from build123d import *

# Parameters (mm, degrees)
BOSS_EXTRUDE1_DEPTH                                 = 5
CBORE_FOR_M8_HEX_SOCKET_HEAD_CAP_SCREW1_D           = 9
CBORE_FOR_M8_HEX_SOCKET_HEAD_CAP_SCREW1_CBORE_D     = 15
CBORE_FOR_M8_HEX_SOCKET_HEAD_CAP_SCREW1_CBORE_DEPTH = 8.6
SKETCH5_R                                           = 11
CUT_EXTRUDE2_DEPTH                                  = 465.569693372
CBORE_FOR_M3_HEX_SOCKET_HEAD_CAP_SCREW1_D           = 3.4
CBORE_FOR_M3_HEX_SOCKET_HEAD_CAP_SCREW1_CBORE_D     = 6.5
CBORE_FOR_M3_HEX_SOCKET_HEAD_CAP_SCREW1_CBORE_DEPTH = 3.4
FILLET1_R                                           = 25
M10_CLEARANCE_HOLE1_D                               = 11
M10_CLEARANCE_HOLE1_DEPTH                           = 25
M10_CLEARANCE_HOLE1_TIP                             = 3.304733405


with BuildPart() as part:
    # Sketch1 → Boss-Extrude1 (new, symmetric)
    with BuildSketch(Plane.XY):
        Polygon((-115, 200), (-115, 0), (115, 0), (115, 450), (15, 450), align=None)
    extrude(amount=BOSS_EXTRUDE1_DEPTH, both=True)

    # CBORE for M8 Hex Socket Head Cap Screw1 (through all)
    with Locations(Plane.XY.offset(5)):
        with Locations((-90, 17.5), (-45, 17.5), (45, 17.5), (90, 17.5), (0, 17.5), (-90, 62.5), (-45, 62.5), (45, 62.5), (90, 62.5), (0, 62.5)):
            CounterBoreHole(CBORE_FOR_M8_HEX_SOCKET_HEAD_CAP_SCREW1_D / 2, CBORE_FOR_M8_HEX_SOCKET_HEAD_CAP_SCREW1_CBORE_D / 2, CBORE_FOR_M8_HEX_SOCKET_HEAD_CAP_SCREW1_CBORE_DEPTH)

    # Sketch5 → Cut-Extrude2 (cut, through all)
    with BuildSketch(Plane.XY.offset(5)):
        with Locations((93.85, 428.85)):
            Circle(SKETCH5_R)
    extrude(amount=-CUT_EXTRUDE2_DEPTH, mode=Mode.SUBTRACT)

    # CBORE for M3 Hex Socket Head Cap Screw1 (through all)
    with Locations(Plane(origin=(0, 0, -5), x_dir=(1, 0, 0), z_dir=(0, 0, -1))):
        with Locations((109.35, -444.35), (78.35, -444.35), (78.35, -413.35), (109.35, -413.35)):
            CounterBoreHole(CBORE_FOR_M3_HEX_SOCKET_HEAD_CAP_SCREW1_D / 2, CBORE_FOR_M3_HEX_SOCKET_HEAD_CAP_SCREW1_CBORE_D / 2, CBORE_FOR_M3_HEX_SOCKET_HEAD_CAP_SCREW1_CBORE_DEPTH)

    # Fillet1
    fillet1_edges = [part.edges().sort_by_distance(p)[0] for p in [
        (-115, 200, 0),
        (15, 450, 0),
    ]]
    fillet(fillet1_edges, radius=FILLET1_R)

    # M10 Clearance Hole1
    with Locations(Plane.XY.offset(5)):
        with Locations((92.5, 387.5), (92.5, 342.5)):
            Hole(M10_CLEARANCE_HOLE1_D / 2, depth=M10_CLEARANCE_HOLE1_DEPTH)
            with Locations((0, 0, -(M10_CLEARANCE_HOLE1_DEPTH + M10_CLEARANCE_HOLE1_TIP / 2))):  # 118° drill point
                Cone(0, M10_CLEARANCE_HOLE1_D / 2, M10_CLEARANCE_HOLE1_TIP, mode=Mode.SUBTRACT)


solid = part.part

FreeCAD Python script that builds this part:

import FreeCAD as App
import Part
import Sketcher


def edges_at(feature, points):
    """Names of the edges that pass closest to the given points."""
    edges = feature.Shape.Edges
    near = lambda p: min(range(len(edges)), key=lambda i: edges[i].distToShape(Part.Vertex(*p))[0])
    return sorted({f"Edge{near(p) + 1}" for p in points})


def add_polygon(sketch, points):
    """Adds a closed chain of lines whose ends are joined by coincident constraints."""
    first, n = sketch.GeometryCount, len(points)
    for a, b in zip(points, points[1:] + points[:1]):
        sketch.addGeometry(Part.LineSegment(App.Vector(*a, 0), App.Vector(*b, 0)), False)
    for i in range(n):
        sketch.addConstraint(Sketcher.Constraint("Coincident", first + i, 2, first + (i + 1) % n, 1))

doc = App.newDocument("Part")
body = doc.addObject("PartDesign::Body", "Body")

sketch1 = body.newObject("Sketcher::SketchObject", "Sketch")
sketch1.AttachmentSupport = (doc.getObject("XY_Plane"), [""])
sketch1.MapMode = "FlatFace"
add_polygon(sketch1, [(-115, 200), (-115, 0), (115, 0), (115, 450), (15, 450)])
sketch1.addConstraint([
    Sketcher.Constraint("Vertical", 0),
    Sketcher.Constraint("Horizontal", 1),
    Sketcher.Constraint("Vertical", 2),
    Sketcher.Constraint("Horizontal", 3),
    Sketcher.Constraint("Symmetric", 0, 2, 1, 2, -1, 1),
    Sketcher.Constraint("DistanceX", 1, 1, 1, 2, 230.0),
    Sketcher.Constraint("DistanceX", 3, 2, 3, 1, 100.0),
    Sketcher.Constraint("DistanceY", 0, 2, 0, 1, 200.0),
    Sketcher.Constraint("DistanceY", 2, 1, 2, 2, 450.0),
])
pad1 = body.newObject("PartDesign::Pad", "Pad")
pad1.Profile = sketch1
pad1.Length = 10
pad1.Midplane = True

sketch2 = body.newObject("Sketcher::SketchObject", "Sketch001")
sketch2.AttachmentSupport = (doc.getObject("XY_Plane"), [""])
sketch2.MapMode = "FlatFace"
sketch2.AttachmentOffset = App.Placement(App.Vector(0, 0, 5), App.Rotation())
sketch2.addGeometry([
    Part.Circle(App.Vector(-90, 17.5, 0), App.Vector(0, 0, 1), 4.5),
    Part.Circle(App.Vector(-45, 17.5, 0), App.Vector(0, 0, 1), 4.5),
    Part.Circle(App.Vector(45, 17.5, 0), App.Vector(0, 0, 1), 4.5),
    Part.Circle(App.Vector(90, 17.5, 0), App.Vector(0, 0, 1), 4.5),
    Part.Circle(App.Vector(0, 17.5, 0), App.Vector(0, 0, 1), 4.5),
    Part.Circle(App.Vector(-90, 62.5, 0), App.Vector(0, 0, 1), 4.5),
    Part.Circle(App.Vector(-45, 62.5, 0), App.Vector(0, 0, 1), 4.5),
    Part.Circle(App.Vector(45, 62.5, 0), App.Vector(0, 0, 1), 4.5),
    Part.Circle(App.Vector(90, 62.5, 0), App.Vector(0, 0, 1), 4.5),
    Part.Circle(App.Vector(0, 62.5, 0), App.Vector(0, 0, 1), 4.5),
], False)
sketch2.addConstraint([
    Sketcher.Constraint("Equal", 0, 1),
    Sketcher.Constraint("Equal", 1, 2),
    Sketcher.Constraint("Equal", 2, 3),
    Sketcher.Constraint("Equal", 3, 4),
    Sketcher.Constraint("Equal", 4, 5),
    Sketcher.Constraint("Equal", 5, 6),
    Sketcher.Constraint("Equal", 6, 7),
    Sketcher.Constraint("Equal", 7, 8),
    Sketcher.Constraint("Equal", 8, 9),
    Sketcher.Constraint("Symmetric", 1, 3, 2, 3, -2),
    Sketcher.Constraint("Symmetric", 0, 3, 3, 3, -2),
    Sketcher.Constraint("Symmetric", 6, 3, 7, 3, -2),
    Sketcher.Constraint("Symmetric", 5, 3, 8, 3, -2),
    Sketcher.Constraint("PointOnObject", 4, 3, -2),
    Sketcher.Constraint("PointOnObject", 9, 3, -2),
    Sketcher.Constraint("Horizontal", 0, 3, 1, 3),
    Sketcher.Constraint("Horizontal", 3, 3, 4, 3),
    Sketcher.Constraint("Horizontal", 5, 3, 6, 3),
    Sketcher.Constraint("Horizontal", 8, 3, 9, 3),
    Sketcher.Constraint("Vertical", 0, 3, 5, 3),
    Sketcher.Constraint("Vertical", 1, 3, 6, 3),
    Sketcher.Constraint("Diameter", 0, 9.0),
    Sketcher.Constraint("DistanceX", 0, 3, -1, 1, 90.0),
    Sketcher.Constraint("DistanceX", 1, 3, -1, 1, 45.0),
    Sketcher.Constraint("DistanceY", 0, 3, 5, 3, 45.0),
    Sketcher.Constraint("DistanceY", -1, 1, 0, 3, 17.5),
])
doc.recompute()
hole = body.newObject("PartDesign::Hole", "Hole")
hole.Profile = sketch2
hole.ThreadType = "None"
hole.Diameter = 9
hole.DepthType = "ThroughAll"
hole.HoleCutType = "Counterbore"
hole.HoleCutDiameter = 15
hole.HoleCutDepth = 8.6

sketch3 = body.newObject("Sketcher::SketchObject", "Sketch002")
sketch3.AttachmentSupport = (doc.getObject("XY_Plane"), [""])
sketch3.MapMode = "FlatFace"
sketch3.AttachmentOffset = App.Placement(App.Vector(0, 0, 5), App.Rotation())
sketch3.addGeometry(Part.Circle(App.Vector(93.85, 428.85, 0), App.Vector(0, 0, 1), 11), False)
sketch3.addConstraint([
    Sketcher.Constraint("Diameter", 0, 22.0),
    Sketcher.Constraint("DistanceX", -1, 1, 0, 3, 93.85),
    Sketcher.Constraint("DistanceY", -1, 1, 0, 3, 428.85),
])
pocket1 = body.newObject("PartDesign::Pocket", "Pocket")
pocket1.Profile = sketch3
pocket1.Type = "ThroughAll"

sketch4 = body.newObject("Sketcher::SketchObject", "Sketch003")
sketch4.AttachmentSupport = (doc.getObject("XY_Plane"), [""])
sketch4.MapMode = "FlatFace"
sketch4.AttachmentOffset = App.Placement(App.Vector(0, 0, -5), App.Rotation())
sketch4.addGeometry([
    Part.Circle(App.Vector(109.35, 444.35, 0), App.Vector(0, 0, 1), 1.7),
    Part.Circle(App.Vector(78.35, 444.35, 0), App.Vector(0, 0, 1), 1.7),
    Part.Circle(App.Vector(78.35, 413.35, 0), App.Vector(0, 0, 1), 1.7),
    Part.Circle(App.Vector(109.35, 413.35, 0), App.Vector(0, 0, 1), 1.7),
], False)
sketch4.addConstraint([
    Sketcher.Constraint("Equal", 0, 1),
    Sketcher.Constraint("Equal", 1, 2),
    Sketcher.Constraint("Equal", 2, 3),
    Sketcher.Constraint("Horizontal", 0, 3, 1, 3),
    Sketcher.Constraint("Horizontal", 2, 3, 3, 3),
    Sketcher.Constraint("Vertical", 1, 3, 2, 3),
    Sketcher.Constraint("Vertical", 0, 3, 3, 3),
    Sketcher.Constraint("Diameter", 0, 3.4),
    Sketcher.Constraint("DistanceX", 1, 3, 0, 3, 31.0),
    Sketcher.Constraint("DistanceY", 2, 3, 1, 3, 31.0),
    Sketcher.Constraint("DistanceX", -1, 1, 0, 3, 109.35),
    Sketcher.Constraint("DistanceY", -1, 1, 0, 3, 444.35),
])
doc.recompute()
hole2 = body.newObject("PartDesign::Hole", "Hole001")
hole2.Profile = sketch4
hole2.ThreadType = "None"
hole2.Diameter = 3.4
hole2.DepthType = "ThroughAll"
hole2.HoleCutType = "Counterbore"
hole2.HoleCutDiameter = 6.5
hole2.HoleCutDepth = 3.4
hole2.Reversed = True
doc.recompute()

fillet = body.newObject("PartDesign::Fillet", "Fillet")
fillet.Base = (hole2, edges_at(hole2, [(-115, 200, 0), (15, 450, 0)]))
fillet.Radius = 25

sketch5 = body.newObject("Sketcher::SketchObject", "Sketch004")
sketch5.AttachmentSupport = (doc.getObject("XY_Plane"), [""])
sketch5.MapMode = "FlatFace"
sketch5.AttachmentOffset = App.Placement(App.Vector(0, 0, 5), App.Rotation())
sketch5.addGeometry([
    Part.Circle(App.Vector(92.5, 387.5, 0), App.Vector(0, 0, 1), 5.5),
    Part.Circle(App.Vector(92.5, 342.5, 0), App.Vector(0, 0, 1), 5.5),
], False)
sketch5.addConstraint([
    Sketcher.Constraint("Equal", 0, 1),
    Sketcher.Constraint("Vertical", 0, 3, 1, 3),
    Sketcher.Constraint("Diameter", 0, 11.0),
    Sketcher.Constraint("DistanceY", 1, 3, 0, 3, 45.0),
    Sketcher.Constraint("DistanceX", -1, 1, 0, 3, 92.5),
    Sketcher.Constraint("DistanceY", -1, 1, 0, 3, 387.5),
])
doc.recompute()
hole3 = body.newObject("PartDesign::Hole", "Hole002")
hole3.Profile = sketch5
hole3.ThreadType = "None"
hole3.Diameter = 11
hole3.DepthType = "Dimension"
hole3.Depth = 25
hole3.DrillPoint = "Angled"
hole3.DrillPointAngle = 118

doc.recompute()
